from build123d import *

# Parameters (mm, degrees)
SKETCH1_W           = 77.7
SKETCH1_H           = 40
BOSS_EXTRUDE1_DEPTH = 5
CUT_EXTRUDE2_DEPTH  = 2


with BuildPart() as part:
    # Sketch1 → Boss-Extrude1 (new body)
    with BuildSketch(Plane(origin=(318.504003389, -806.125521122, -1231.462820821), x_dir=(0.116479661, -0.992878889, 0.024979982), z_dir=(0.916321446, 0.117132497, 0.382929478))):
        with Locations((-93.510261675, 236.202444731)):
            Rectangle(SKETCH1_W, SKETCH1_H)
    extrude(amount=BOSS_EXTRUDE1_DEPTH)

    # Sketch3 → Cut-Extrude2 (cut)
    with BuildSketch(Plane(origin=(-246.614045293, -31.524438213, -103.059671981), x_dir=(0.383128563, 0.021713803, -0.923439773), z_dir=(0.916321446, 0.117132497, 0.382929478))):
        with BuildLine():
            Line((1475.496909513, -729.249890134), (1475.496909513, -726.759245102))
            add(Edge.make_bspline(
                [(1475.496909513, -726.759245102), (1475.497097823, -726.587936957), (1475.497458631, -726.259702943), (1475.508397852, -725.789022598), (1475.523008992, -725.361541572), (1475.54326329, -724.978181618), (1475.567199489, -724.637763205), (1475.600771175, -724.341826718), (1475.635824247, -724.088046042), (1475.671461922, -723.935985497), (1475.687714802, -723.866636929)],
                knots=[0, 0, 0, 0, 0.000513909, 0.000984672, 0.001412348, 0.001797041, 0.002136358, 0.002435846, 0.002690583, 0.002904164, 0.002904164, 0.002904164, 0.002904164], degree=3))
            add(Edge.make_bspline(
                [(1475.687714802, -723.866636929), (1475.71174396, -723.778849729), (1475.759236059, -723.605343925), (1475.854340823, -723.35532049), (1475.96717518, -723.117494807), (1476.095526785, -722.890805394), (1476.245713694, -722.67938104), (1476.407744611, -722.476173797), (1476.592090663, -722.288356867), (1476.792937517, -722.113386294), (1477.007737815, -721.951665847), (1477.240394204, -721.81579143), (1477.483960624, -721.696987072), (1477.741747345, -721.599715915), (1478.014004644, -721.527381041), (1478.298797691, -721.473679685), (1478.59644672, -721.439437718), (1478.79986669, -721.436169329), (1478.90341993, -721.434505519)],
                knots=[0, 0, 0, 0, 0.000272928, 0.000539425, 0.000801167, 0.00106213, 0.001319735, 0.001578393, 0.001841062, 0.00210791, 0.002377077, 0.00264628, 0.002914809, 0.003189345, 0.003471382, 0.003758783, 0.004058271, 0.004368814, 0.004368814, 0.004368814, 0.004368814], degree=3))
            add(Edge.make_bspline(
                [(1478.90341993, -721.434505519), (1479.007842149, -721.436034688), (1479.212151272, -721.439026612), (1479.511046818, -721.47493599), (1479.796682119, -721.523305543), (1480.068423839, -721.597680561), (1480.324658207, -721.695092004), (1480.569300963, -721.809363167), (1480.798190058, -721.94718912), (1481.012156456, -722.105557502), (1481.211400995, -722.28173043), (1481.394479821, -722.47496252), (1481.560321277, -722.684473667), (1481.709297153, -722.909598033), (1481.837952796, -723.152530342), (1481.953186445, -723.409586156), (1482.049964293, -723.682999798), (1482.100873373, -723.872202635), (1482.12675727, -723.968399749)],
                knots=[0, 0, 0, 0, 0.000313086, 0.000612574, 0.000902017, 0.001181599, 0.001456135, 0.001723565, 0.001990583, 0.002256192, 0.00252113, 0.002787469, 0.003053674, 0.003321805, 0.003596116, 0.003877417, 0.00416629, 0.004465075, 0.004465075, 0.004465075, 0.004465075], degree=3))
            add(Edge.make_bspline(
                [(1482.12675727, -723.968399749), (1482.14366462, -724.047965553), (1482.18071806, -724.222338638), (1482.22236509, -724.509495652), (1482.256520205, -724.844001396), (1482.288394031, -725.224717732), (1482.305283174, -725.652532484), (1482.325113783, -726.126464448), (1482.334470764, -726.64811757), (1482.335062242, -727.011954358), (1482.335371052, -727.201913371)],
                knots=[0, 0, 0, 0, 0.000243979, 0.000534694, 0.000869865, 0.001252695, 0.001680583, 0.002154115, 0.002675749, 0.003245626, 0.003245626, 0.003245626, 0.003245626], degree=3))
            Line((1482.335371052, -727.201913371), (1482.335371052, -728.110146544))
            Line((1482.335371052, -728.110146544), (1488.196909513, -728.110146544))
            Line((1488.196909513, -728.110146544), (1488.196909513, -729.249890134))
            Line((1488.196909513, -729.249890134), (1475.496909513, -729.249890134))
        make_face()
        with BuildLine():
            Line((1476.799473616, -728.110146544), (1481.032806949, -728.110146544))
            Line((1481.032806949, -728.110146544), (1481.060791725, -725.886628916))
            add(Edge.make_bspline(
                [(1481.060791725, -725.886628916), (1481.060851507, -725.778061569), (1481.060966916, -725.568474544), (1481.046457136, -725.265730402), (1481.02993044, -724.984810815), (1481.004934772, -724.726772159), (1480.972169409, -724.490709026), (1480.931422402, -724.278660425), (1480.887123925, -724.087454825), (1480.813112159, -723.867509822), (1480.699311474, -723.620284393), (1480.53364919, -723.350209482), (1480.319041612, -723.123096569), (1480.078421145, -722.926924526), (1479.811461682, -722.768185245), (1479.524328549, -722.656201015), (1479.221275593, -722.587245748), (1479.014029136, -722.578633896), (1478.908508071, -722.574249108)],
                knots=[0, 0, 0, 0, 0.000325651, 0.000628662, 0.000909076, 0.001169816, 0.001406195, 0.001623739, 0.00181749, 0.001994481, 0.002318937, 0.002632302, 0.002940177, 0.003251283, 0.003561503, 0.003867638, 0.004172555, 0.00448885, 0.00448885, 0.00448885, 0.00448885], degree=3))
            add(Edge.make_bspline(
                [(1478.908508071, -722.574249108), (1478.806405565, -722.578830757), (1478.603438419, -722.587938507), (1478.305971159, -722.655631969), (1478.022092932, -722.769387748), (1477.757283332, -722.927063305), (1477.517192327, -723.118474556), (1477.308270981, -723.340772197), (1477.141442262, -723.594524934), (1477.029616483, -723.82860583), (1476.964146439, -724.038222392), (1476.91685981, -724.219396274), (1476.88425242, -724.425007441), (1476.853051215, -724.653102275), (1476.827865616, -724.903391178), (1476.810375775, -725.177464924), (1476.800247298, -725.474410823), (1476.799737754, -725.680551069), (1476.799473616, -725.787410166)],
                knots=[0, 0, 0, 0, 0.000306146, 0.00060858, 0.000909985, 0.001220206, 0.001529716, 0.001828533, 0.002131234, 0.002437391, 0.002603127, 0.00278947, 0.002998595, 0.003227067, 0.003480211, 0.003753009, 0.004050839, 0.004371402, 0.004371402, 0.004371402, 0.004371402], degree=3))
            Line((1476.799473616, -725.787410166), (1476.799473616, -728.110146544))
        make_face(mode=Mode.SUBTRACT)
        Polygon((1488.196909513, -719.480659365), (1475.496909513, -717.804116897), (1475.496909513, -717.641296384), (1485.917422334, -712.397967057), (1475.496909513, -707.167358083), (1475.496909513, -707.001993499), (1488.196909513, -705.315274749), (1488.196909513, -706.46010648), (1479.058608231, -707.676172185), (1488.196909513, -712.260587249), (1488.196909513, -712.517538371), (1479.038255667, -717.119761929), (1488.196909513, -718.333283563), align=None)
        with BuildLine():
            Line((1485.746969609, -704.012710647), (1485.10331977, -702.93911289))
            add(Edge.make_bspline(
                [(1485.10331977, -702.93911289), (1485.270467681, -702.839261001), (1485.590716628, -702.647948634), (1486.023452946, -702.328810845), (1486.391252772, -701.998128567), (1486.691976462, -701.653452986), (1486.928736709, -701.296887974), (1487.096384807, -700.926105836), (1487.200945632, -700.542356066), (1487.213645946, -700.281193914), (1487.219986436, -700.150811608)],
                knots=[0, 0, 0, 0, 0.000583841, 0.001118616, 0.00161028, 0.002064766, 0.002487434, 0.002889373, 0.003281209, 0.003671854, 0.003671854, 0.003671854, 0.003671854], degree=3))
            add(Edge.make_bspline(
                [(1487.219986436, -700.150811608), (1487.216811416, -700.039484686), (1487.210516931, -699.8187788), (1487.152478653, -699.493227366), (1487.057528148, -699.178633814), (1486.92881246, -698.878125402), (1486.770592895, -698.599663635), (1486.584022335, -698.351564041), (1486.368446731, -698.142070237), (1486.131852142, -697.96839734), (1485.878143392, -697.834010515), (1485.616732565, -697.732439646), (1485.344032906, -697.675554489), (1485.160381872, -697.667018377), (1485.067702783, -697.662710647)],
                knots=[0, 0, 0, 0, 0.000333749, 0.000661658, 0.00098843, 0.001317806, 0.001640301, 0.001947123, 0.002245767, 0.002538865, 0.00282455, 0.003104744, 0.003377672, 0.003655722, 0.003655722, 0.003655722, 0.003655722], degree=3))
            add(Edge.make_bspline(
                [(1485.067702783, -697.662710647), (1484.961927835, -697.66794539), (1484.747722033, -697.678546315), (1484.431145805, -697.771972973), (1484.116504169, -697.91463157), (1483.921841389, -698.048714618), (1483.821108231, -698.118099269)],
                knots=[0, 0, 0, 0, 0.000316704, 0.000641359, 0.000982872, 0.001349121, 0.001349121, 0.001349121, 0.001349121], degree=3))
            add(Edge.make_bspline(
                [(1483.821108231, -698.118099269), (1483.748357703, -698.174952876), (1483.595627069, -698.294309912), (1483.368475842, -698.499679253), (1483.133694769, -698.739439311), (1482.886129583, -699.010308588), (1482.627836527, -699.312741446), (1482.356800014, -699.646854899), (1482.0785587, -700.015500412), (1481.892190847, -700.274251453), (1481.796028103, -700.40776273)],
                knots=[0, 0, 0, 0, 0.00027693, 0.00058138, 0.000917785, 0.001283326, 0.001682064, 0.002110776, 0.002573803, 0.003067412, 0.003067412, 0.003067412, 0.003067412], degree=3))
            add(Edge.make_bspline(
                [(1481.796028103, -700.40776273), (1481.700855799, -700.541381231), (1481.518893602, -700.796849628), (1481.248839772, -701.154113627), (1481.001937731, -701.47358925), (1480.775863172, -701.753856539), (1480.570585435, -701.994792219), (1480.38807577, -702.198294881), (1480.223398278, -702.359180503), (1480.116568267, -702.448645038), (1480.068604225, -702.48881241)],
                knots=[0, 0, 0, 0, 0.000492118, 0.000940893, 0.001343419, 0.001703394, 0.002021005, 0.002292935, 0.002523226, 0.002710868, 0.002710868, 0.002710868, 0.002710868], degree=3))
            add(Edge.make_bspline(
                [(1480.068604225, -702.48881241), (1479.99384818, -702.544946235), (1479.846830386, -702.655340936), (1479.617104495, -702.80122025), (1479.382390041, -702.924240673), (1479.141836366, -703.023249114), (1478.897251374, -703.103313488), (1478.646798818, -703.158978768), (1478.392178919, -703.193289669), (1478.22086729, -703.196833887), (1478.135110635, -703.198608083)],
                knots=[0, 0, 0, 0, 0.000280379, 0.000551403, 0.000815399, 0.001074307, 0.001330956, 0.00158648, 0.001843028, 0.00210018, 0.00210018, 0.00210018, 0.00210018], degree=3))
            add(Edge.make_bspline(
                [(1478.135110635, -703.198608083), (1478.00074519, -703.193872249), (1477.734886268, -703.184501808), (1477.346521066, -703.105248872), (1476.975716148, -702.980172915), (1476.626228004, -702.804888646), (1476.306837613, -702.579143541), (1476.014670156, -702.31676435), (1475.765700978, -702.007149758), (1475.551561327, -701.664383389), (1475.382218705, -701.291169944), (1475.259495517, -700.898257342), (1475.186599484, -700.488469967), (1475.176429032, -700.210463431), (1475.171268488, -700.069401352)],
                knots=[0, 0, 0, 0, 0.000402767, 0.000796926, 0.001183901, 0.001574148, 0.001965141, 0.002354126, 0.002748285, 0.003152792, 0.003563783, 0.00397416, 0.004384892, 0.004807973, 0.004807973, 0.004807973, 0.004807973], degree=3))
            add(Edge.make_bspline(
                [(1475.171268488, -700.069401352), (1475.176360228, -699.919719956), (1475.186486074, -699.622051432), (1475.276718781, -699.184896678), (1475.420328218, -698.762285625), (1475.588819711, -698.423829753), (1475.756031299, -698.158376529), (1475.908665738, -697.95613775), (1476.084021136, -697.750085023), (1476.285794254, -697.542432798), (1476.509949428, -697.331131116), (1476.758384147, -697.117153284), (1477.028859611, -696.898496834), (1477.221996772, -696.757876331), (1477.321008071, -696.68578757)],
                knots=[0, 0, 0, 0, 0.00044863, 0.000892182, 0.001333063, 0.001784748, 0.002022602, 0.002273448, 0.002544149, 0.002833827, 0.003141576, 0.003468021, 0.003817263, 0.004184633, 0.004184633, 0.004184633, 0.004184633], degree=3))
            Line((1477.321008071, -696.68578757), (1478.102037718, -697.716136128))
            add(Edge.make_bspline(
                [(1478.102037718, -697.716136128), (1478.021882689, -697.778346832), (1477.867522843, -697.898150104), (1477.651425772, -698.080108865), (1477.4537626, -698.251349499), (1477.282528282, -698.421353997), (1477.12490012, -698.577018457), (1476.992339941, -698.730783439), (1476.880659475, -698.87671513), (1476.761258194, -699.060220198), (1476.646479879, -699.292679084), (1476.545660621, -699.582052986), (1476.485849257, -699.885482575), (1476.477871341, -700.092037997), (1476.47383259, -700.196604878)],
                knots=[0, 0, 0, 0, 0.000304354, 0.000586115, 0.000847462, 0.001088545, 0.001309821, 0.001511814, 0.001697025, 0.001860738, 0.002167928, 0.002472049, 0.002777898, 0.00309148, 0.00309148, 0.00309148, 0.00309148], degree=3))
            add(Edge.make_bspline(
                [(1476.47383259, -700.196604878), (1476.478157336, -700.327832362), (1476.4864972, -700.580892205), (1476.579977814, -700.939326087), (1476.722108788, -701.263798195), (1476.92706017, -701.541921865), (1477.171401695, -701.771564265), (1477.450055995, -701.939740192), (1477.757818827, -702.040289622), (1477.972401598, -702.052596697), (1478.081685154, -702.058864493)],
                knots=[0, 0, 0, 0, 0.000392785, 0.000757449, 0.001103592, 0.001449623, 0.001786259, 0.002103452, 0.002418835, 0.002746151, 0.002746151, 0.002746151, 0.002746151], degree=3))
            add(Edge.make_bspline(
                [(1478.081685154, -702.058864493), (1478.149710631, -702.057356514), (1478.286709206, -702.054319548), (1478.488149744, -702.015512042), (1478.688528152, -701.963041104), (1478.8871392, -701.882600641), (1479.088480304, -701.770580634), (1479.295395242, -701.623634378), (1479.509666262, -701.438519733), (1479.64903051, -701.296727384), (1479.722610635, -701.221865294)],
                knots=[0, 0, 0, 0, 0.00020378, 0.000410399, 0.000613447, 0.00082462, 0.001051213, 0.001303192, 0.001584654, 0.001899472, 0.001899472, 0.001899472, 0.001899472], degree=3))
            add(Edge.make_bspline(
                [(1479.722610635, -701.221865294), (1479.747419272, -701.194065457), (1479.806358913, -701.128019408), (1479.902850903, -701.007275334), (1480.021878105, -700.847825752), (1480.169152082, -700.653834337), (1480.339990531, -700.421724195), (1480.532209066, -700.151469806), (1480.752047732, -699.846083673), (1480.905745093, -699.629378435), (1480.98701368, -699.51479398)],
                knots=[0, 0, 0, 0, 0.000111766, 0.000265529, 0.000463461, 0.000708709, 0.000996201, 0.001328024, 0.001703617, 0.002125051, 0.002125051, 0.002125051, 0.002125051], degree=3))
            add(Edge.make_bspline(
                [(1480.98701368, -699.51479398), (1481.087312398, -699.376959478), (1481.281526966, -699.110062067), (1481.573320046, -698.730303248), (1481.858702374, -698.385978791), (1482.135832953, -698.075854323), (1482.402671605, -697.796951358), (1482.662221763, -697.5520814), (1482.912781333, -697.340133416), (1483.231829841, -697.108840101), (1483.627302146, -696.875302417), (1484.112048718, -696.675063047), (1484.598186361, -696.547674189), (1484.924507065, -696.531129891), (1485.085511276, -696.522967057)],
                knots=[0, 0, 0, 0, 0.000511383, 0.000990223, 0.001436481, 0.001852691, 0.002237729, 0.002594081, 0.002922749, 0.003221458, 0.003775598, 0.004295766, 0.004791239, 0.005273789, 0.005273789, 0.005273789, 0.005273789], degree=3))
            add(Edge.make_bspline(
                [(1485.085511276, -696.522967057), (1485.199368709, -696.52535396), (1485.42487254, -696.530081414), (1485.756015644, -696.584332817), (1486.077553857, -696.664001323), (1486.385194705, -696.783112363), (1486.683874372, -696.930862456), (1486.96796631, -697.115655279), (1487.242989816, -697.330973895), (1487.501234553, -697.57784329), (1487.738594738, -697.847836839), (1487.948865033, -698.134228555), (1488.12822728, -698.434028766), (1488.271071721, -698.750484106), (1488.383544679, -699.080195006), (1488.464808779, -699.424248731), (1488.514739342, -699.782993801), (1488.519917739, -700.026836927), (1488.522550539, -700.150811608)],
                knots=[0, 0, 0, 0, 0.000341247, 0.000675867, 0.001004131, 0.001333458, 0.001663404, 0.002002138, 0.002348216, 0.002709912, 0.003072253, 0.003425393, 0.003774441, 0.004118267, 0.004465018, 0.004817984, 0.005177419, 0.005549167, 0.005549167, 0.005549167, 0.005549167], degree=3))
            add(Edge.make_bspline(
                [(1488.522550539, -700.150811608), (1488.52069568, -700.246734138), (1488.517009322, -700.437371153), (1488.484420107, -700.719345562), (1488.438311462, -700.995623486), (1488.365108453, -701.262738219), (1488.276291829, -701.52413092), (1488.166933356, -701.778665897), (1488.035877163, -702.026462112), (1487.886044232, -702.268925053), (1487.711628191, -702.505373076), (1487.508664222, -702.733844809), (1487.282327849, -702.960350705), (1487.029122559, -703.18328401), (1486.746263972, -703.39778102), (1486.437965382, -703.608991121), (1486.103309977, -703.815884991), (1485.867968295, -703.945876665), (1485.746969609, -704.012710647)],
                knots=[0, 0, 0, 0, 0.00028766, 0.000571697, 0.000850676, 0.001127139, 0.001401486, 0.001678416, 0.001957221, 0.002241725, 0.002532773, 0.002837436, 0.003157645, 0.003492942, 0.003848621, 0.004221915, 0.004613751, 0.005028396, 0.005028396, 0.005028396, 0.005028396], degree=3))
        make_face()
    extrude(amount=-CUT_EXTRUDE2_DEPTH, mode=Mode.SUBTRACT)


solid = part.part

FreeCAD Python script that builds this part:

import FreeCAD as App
import Part
import Sketcher
from FreeCAD import Vector
Q = App.Units.Quantity

doc = App.newDocument("Part")
body = doc.addObject("PartDesign::Body", "Body")

# Sketch on an angled plane
sketch1 = body.newObject("Sketcher::SketchObject", "Sketch")
sketch1.Placement = App.Placement(Vector(318.504003, -806.125521, -1231.462821), App.Rotation(Vector(0.116479662, -0.992878889, 0.024979982), Vector(0.383128562, 0.021713803, -0.923439773), Vector(0.916321446, 0.117132497, 0.382929478), "ZXY"))
sketch1.addGeometry([
    Part.LineSegment(Vector(-132, 256, 0), Vector(-132, 216, 0)),
    Part.LineSegment(Vector(-132, 216, 0), Vector(-55, 216, 0)),
    Part.LineSegment(Vector(-55, 216, 0), Vector(-55, 256, 0)),
    Part.LineSegment(Vector(-55, 256, 0), Vector(-132, 256, 0)),
], False)
sketch1.addConstraint([
    Sketcher.Constraint("Coincident", 0, 2, 1, 1),
    Sketcher.Constraint("Coincident", 1, 2, 2, 1),
    Sketcher.Constraint("Coincident", 2, 2, 3, 1),
    Sketcher.Constraint("Coincident", 3, 2, 0, 1),
    Sketcher.Constraint("Vertical", 0),
    Sketcher.Constraint("Horizontal", 1),
    Sketcher.Constraint("Vertical", 2),
    Sketcher.Constraint("Horizontal", 3),
    Sketcher.Constraint("DistanceY", 0, 2, 0, 1, Q("40 mm")),
    Sketcher.Constraint("DistanceX", 1, 1, 1, 2, Q("77.7 mm")),
    Sketcher.Constraint("DistanceX", 0, 2, -1, 1, Q("132.360262 mm")),
    Sketcher.Constraint("DistanceY", -1, 1, 0, 2, Q("216.202444 mm")),
])
pad1 = body.newObject("PartDesign::Pad", "Pad")
pad1.Profile = sketch1
pad1.Length = 5

# Sketch on an angled plane
sketch2 = body.newObject("Sketcher::SketchObject", "Sketch001")
sketch2.Placement = App.Placement(Vector(-246.614045, -31.524438, -103.059672), App.Rotation(Vector(0.383128563, 0.021713803, -0.923439774), Vector(-0.116479662, 0.99287889, -0.024979982), Vector(0.916321446, 0.117132497, 0.382929478), "ZXY"))
sketch2.addGeometry([
    Part.LineSegment(Vector(1475.496911, -726.759246, 0), Vector(1475.496911, -729.249891, 0)),  # 0
    Part.LineSegment(Vector(1475.496911, -729.249891, 0), Vector(1488.196911, -729.249891, 0)),  # 1
    Part.LineSegment(Vector(1488.196911, -729.249891, 0), Vector(1488.196911, -728.110147, 0)),  # 2
    Part.LineSegment(Vector(1488.196911, -728.110147, 0), Vector(1482.335373, -728.110147, 0)),  # 3
    Part.LineSegment(Vector(1482.335373, -728.110147, 0), Vector(1482.335373, -727.201914, 0)),  # 4
    Part.BSplineCurve([Vector(1482.126759, -723.9684, 0), Vector(1482.143666, -724.047966, 0), Vector(1482.18072, -724.222339, 0), Vector(1482.222367, -724.509496, 0), Vector(1482.256522, -724.844002, 0), Vector(1482.288396, -725.224718, 0), Vector(1482.305285, -725.652533, 0), Vector(1482.325116, -726.126465, 0), Vector(1482.334473, -726.648118, 0), Vector(1482.335064, -727.011955, 0), Vector(1482.335373, -727.201914, 0)], [4, 1, 1, 1, 1, 1, 1, 1, 4], [0, 0.000243979, 0.000534694, 0.000869865, 0.001252695, 0.001680583, 0.002154115, 0.002675749, 0.003245626], False, 3, [1, 1, 1, 1, 1, 1, 1, 1, 1, 1, 1], False),  # 5
    Part.BSplineCurve([Vector(1478.903422, -721.434506, 0), Vector(1479.007844, -721.436035, 0), Vector(1479.212153, -721.439027, 0), Vector(1479.511049, -721.474936, 0), Vector(1479.796684, -721.523306, 0), Vector(1480.068426, -721.597681, 0), Vector(1480.32466, -721.695092, 0), Vector(1480.569303, -721.809364, 0), Vector(1480.798192, -721.94719, 0), Vector(1481.012158, -722.105558, 0), Vector(1481.211403, -722.281731, 0), Vector(1481.394482, -722.474963, 0), Vector(1481.560323, -722.684474, 0), Vector(1481.709299, -722.909598, 0), Vector(1481.837955, -723.152531, 0), Vector(1481.953188, -723.409587, 0), Vector(1482.049966, -723.683, 0), Vector(1482.100875, -723.872203, 0), Vector(1482.126759, -723.9684, 0)], [4, 1, 1, 1, 1, 1, 1, 1, 1, 1, 1, 1, 1, 1, 1, 1, 4], [0, 0.000313086, 0.000612574, 0.000902017, 0.001181599, 0.001456135, 0.001723565, 0.001990583, 0.002256192, 0.00252113, 0.002787469, 0.003053674, 0.003321805, 0.003596116, 0.003877417, 0.00416629, 0.004465075], False, 3, [1, 1, 1, 1, 1, 1, 1, 1, 1, 1, 1, 1, 1, 1, 1, 1, 1, 1, 1], False),  # 6
    Part.BSplineCurve([Vector(1475.687717, -723.866637, 0), Vector(1475.711746, -723.77885, 0), Vector(1475.759238, -723.605344, 0), Vector(1475.854343, -723.355321, 0), Vector(1475.967177, -723.117495, 0), Vector(1476.095529, -722.890806, 0), Vector(1476.245716, -722.679381, 0), Vector(1476.407746, -722.476174, 0), Vector(1476.592092, -722.288357, 0), Vector(1476.792939, -722.113387, 0), Vector(1477.00774, -721.951666, 0), Vector(1477.240396, -721.815792, 0), Vector(1477.483962, -721.696988, 0), Vector(1477.741749, -721.599716, 0), Vector(1478.014006, -721.527381, 0), Vector(1478.2988, -721.47368, 0), Vector(1478.596449, -721.439438, 0), Vector(1478.799869, -721.43617, 0), Vector(1478.903422, -721.434506, 0)], [4, 1, 1, 1, 1, 1, 1, 1, 1, 1, 1, 1, 1, 1, 1, 1, 4], [0, 0.000272928, 0.000539425, 0.000801167, 0.00106213, 0.001319735, 0.001578393, 0.001841062, 0.00210791, 0.002377077, 0.00264628, 0.002914809, 0.003189345, 0.003471382, 0.003758783, 0.004058271, 0.004368814], False, 3, [1, 1, 1, 1, 1, 1, 1, 1, 1, 1, 1, 1, 1, 1, 1, 1, 1, 1, 1], False),  # 7
    Part.BSplineCurve([Vector(1475.496911, -726.759246, 0), Vector(1475.4971, -726.587937, 0), Vector(1475.49746, -726.259703, 0), Vector(1475.5084, -725.789023, 0), Vector(1475.523011, -725.361542, 0), Vector(1475.543265, -724.978182, 0), Vector(1475.567201, -724.637764, 0), Vector(1475.600773, -724.341827, 0), Vector(1475.635826, -724.088046, 0), Vector(1475.671464, -723.935986, 0), Vector(1475.687717, -723.866637, 0)], [4, 1, 1, 1, 1, 1, 1, 1, 4], [0, 0.000513909, 0.000984672, 0.001412348, 0.001797041, 0.002136358, 0.002435846, 0.002690583, 0.002904164], False, 3, [1, 1, 1, 1, 1, 1, 1, 1, 1, 1, 1], False),  # 8
    Part.LineSegment(Vector(1476.799475, -728.110147, 0), Vector(1476.799475, -725.787411, 0)),  # 9
    Part.BSplineCurve([Vector(1478.90851, -722.57425, 0), Vector(1478.806407, -722.578831, 0), Vector(1478.60344, -722.587939, 0), Vector(1478.305973, -722.655632, 0), Vector(1478.022095, -722.769388, 0), Vector(1477.757285, -722.927064, 0), Vector(1477.517194, -723.118475, 0), Vector(1477.308273, -723.340773, 0), Vector(1477.141444, -723.594525, 0), Vector(1477.029618, -723.828606, 0), Vector(1476.964148, -724.038223, 0), Vector(1476.916862, -724.219397, 0), Vector(1476.884254, -724.425008, 0), Vector(1476.853053, -724.653103, 0), Vector(1476.827867, -724.903392, 0), Vector(1476.810378, -725.177465, 0), Vector(1476.800249, -725.474411, 0), Vector(1476.79974, -725.680552, 0), Vector(1476.799475, -725.787411, 0)], [4, 1, 1, 1, 1, 1, 1, 1, 1, 1, 1, 1, 1, 1, 1, 1, 4], [0, 0.000306146, 0.00060858, 0.000909985, 0.001220206, 0.001529716, 0.001828533, 0.002131234, 0.002437391, 0.002603127, 0.00278947, 0.002998595, 0.003227067, 0.003480211, 0.003753009, 0.004050839, 0.004371402], False, 3, [1, 1, 1, 1, 1, 1, 1, 1, 1, 1, 1, 1, 1, 1, 1, 1, 1, 1, 1], False),  # 10
    Part.BSplineCurve([Vector(1481.060794, -725.886629, 0), Vector(1481.060853, -725.778062, 0), Vector(1481.060969, -725.568475, 0), Vector(1481.046459, -725.265731, 0), Vector(1481.029932, -724.984811, 0), Vector(1481.004937, -724.726773, 0), Vector(1480.972171, -724.490709, 0), Vector(1480.931424, -724.278661, 0), Vector(1480.887126, -724.087455, 0), Vector(1480.813114, -723.86751, 0), Vector(1480.699313, -723.620285, 0), Vector(1480.533651, -723.35021, 0), Vector(1480.319043, -723.123097, 0), Vector(1480.078423, -722.926925, 0), Vector(1479.811464, -722.768186, 0), Vector(1479.52433, -722.656201, 0), Vector(1479.221277, -722.587246, 0), Vector(1479.014031, -722.578634, 0), Vector(1478.90851, -722.57425, 0)], [4, 1, 1, 1, 1, 1, 1, 1, 1, 1, 1, 1, 1, 1, 1, 1, 4], [0, 0.000325651, 0.000628662, 0.000909076, 0.001169816, 0.001406195, 0.001623739, 0.00181749, 0.001994481, 0.002318937, 0.002632302, 0.002940177, 0.003251283, 0.003561503, 0.003867638, 0.004172555, 0.00448885], False, 3, [1, 1, 1, 1, 1, 1, 1, 1, 1, 1, 1, 1, 1, 1, 1, 1, 1, 1, 1], False),  # 11
    Part.LineSegment(Vector(1481.060794, -725.886629, 0), Vector(1481.032809, -728.110147, 0)),  # 12
    Part.LineSegment(Vector(1481.032809, -728.110147, 0), Vector(1476.799475, -728.110147, 0)),  # 13
    Part.LineSegment(Vector(1475.496911, -717.804117, 0), Vector(1488.196911, -719.48066, 0)),  # 14
    Part.LineSegment(Vector(1488.196911, -719.48066, 0), Vector(1488.196911, -718.333284, 0)),  # 15
    Part.LineSegment(Vector(1488.196911, -718.333284, 0), Vector(1479.038257, -717.119762, 0)),  # 16
    Part.LineSegment(Vector(1479.038257, -717.119762, 0), Vector(1488.196911, -712.517539, 0)),  # 17
    Part.LineSegment(Vector(1488.196911, -712.517539, 0), Vector(1488.196911, -712.260588, 0)),  # 18
    Part.LineSegment(Vector(1488.196911, -712.260588, 0), Vector(1479.05861, -707.676173, 0)),  # 19
    Part.LineSegment(Vector(1479.05861, -707.676173, 0), Vector(1488.196911, -706.460107, 0)),  # 20
    Part.LineSegment(Vector(1488.196911, -706.460107, 0), Vector(1488.196911, -705.315275, 0)),  # 21
    Part.LineSegment(Vector(1488.196911, -705.315275, 0), Vector(1475.496911, -707.001994, 0)),  # 22
    Part.LineSegment(Vector(1475.496911, -707.001994, 0), Vector(1475.496911, -707.167359, 0)),  # 23
    Part.LineSegment(Vector(1475.496911, -707.167359, 0), Vector(1485.917424, -712.397967, 0)),  # 24
    Part.LineSegment(Vector(1485.917424, -712.397967, 0), Vector(1475.496911, -717.641297, 0)),  # 25
    Part.LineSegment(Vector(1475.496911, -717.641297, 0), Vector(1475.496911, -717.804117, 0)),  # 26
    Part.LineSegment(Vector(1485.103322, -702.939113, 0), Vector(1485.746971, -704.012711, 0)),  # 27
    Part.BSplineCurve([Vector(1488.522552, -700.150812, 0), Vector(1488.520698, -700.246735, 0), Vector(1488.517011, -700.437372, 0), Vector(1488.484422, -700.719346, 0), Vector(1488.438313, -700.995624, 0), Vector(1488.36511, -701.262739, 0), Vector(1488.276294, -701.524131, 0), Vector(1488.166935, -701.778666, 0), Vector(1488.035879, -702.026463, 0), Vector(1487.886046, -702.268925, 0), Vector(1487.71163, -702.505374, 0), Vector(1487.508666, -702.733845, 0), Vector(1487.28233, -702.960351, 0), Vector(1487.029124, -703.183284, 0), Vector(1486.746266, -703.397781, 0), Vector(1486.437967, -703.608992, 0), Vector(1486.103312, -703.815885, 0), Vector(1485.86797, -703.945877, 0), Vector(1485.746971, -704.012711, 0)], [4, 1, 1, 1, 1, 1, 1, 1, 1, 1, 1, 1, 1, 1, 1, 1, 4], [0, 0.00028766, 0.000571697, 0.000850676, 0.001127139, 0.001401486, 0.001678416, 0.001957221, 0.002241725, 0.002532773, 0.002837436, 0.003157645, 0.003492942, 0.003848621, 0.004221915, 0.004613751, 0.005028396], False, 3, [1, 1, 1, 1, 1, 1, 1, 1, 1, 1, 1, 1, 1, 1, 1, 1, 1, 1, 1], False),  # 28
    Part.BSplineCurve([Vector(1485.085513, -696.522967, 0), Vector(1485.199371, -696.525354, 0), Vector(1485.424874, -696.530082, 0), Vector(1485.756017, -696.584333, 0), Vector(1486.077556, -696.664002, 0), Vector(1486.385197, -696.783113, 0), Vector(1486.683876, -696.930863, 0), Vector(1486.967968, -697.115656, 0), Vector(1487.242992, -697.330974, 0), Vector(1487.501236, -697.577844, 0), Vector(1487.738597, -697.847837, 0), Vector(1487.948867, -698.134229, 0), Vector(1488.128229, -698.434029, 0), Vector(1488.271074, -698.750485, 0), Vector(1488.383547, -699.080195, 0), Vector(1488.464811, -699.424249, 0), Vector(1488.514741, -699.782994, 0), Vector(1488.51992, -700.026837, 0), Vector(1488.522552, -700.150812, 0)], [4, 1, 1, 1, 1, 1, 1, 1, 1, 1, 1, 1, 1, 1, 1, 1, 4], [0, 0.000341247, 0.000675867, 0.001004131, 0.001333458, 0.001663404, 0.002002138, 0.002348216, 0.002709912, 0.003072253, 0.003425393, 0.003774441, 0.004118267, 0.004465018, 0.004817984, 0.005177419, 0.005549167], False, 3, [1, 1, 1, 1, 1, 1, 1, 1, 1, 1, 1, 1, 1, 1, 1, 1, 1, 1, 1], False),  # 29
    Part.BSplineCurve([Vector(1480.987016, -699.514794, 0), Vector(1481.087314, -699.37696, 0), Vector(1481.281529, -699.110062, 0), Vector(1481.573322, -698.730304, 0), Vector(1481.858704, -698.385979, 0), Vector(1482.135835, -698.075855, 0), Vector(1482.402673, -697.796952, 0), Vector(1482.662224, -697.552082, 0), Vector(1482.912783, -697.340134, 0), Vector(1483.231832, -697.108841, 0), Vector(1483.627304, -696.875303, 0), Vector(1484.112051, -696.675063, 0), Vector(1484.598188, -696.547675, 0), Vector(1484.924509, -696.53113, 0), Vector(1485.085513, -696.522967, 0)], [4, 1, 1, 1, 1, 1, 1, 1, 1, 1, 1, 1, 4], [0, 0.000511383, 0.000990223, 0.001436481, 0.001852691, 0.002237729, 0.002594081, 0.002922749, 0.003221458, 0.003775598, 0.004295766, 0.004791239, 0.005273789], False, 3, [1, 1, 1, 1, 1, 1, 1, 1, 1, 1, 1, 1, 1, 1, 1], False),  # 30
    Part.BSplineCurve([Vector(1479.722612, -701.221866, 0), Vector(1479.747421, -701.194066, 0), Vector(1479.806361, -701.12802, 0), Vector(1479.902853, -701.007276, 0), Vector(1480.02188, -700.847826, 0), Vector(1480.169154, -700.653835, 0), Vector(1480.339992, -700.421725, 0), Vector(1480.532211, -700.15147, 0), Vector(1480.75205, -699.846084, 0), Vector(1480.905747, -699.629379, 0), Vector(1480.987016, -699.514794, 0)], [4, 1, 1, 1, 1, 1, 1, 1, 4], [0, 0.000111766, 0.000265529, 0.000463461, 0.000708709, 0.000996201, 0.001328024, 0.001703617, 0.002125051], False, 3, [1, 1, 1, 1, 1, 1, 1, 1, 1, 1, 1], False),  # 31
    Part.BSplineCurve([Vector(1478.081687, -702.058865, 0), Vector(1478.149712, -702.057357, 0), Vector(1478.286711, -702.05432, 0), Vector(1478.488152, -702.015512, 0), Vector(1478.68853, -701.963042, 0), Vector(1478.887141, -701.882601, 0), Vector(1479.088482, -701.770581, 0), Vector(1479.295397, -701.623635, 0), Vector(1479.509668, -701.43852, 0), Vector(1479.649032, -701.296728, 0), Vector(1479.722612, -701.221866, 0)], [4, 1, 1, 1, 1, 1, 1, 1, 4], [0, 0.00020378, 0.000410399, 0.000613447, 0.00082462, 0.001051213, 0.001303192, 0.001584654, 0.001899472], False, 3, [1, 1, 1, 1, 1, 1, 1, 1, 1, 1, 1], False),  # 32
    Part.BSplineCurve([Vector(1476.473834, -700.196605, 0), Vector(1476.478159, -700.327833, 0), Vector(1476.486499, -700.580893, 0), Vector(1476.57998, -700.939327, 0), Vector(1476.722111, -701.263799, 0), Vector(1476.927062, -701.541922, 0), Vector(1477.171404, -701.771565, 0), Vector(1477.450058, -701.939741, 0), Vector(1477.757821, -702.04029, 0), Vector(1477.972403, -702.052597, 0), Vector(1478.081687, -702.058865, 0)], [4, 1, 1, 1, 1, 1, 1, 1, 4], [0, 0.000392785, 0.000757449, 0.001103592, 0.001449623, 0.001786259, 0.002103452, 0.002418835, 0.002746151], False, 3, [1, 1, 1, 1, 1, 1, 1, 1, 1, 1, 1], False),  # 33
    Part.BSplineCurve([Vector(1478.10204, -697.716137, 0), Vector(1478.021885, -697.778347, 0), Vector(1477.867525, -697.898151, 0), Vector(1477.651428, -698.080109, 0), Vector(1477.453764, -698.25135, 0), Vector(1477.28253, -698.421354, 0), Vector(1477.124902, -698.577019, 0), Vector(1476.992342, -698.730784, 0), Vector(1476.880661, -698.876716, 0), Vector(1476.76126, -699.060221, 0), Vector(1476.646482, -699.29268, 0), Vector(1476.545662, -699.582053, 0), Vector(1476.485851, -699.885483, 0), Vector(1476.477873, -700.092038, 0), Vector(1476.473834, -700.196605, 0)], [4, 1, 1, 1, 1, 1, 1, 1, 1, 1, 1, 1, 4], [0, 0.000304354, 0.000586115, 0.000847462, 0.001088545, 0.001309821, 0.001511814, 0.001697025, 0.001860738, 0.002167928, 0.002472049, 0.002777898, 0.00309148], False, 3, [1, 1, 1, 1, 1, 1, 1, 1, 1, 1, 1, 1, 1, 1, 1], False),  # 34
    Part.LineSegment(Vector(1478.10204, -697.716137, 0), Vector(1477.32101, -696.685788, 0)),  # 35
    Part.BSplineCurve([Vector(1475.17127, -700.069402, 0), Vector(1475.176362, -699.91972, 0), Vector(1475.186488, -699.622052, 0), Vector(1475.276721, -699.184897, 0), Vector(1475.42033, -698.762286, 0), Vector(1475.588822, -698.42383, 0), Vector(1475.756033, -698.158377, 0), Vector(1475.908668, -697.956138, 0), Vector(1476.084023, -697.750085, 0), Vector(1476.285796, -697.542433, 0), Vector(1476.509951, -697.331132, 0), Vector(1476.758386, -697.117154, 0), Vector(1477.028861, -696.898497, 0), Vector(1477.221999, -696.757877, 0), Vector(1477.32101, -696.685788, 0)], [4, 1, 1, 1, 1, 1, 1, 1, 1, 1, 1, 1, 4], [0, 0.00044863, 0.000892182, 0.001333063, 0.001784748, 0.002022602, 0.002273448, 0.002544149, 0.002833827, 0.003141576, 0.003468021, 0.003817263, 0.004184633], False, 3, [1, 1, 1, 1, 1, 1, 1, 1, 1, 1, 1, 1, 1, 1, 1], False),  # 36
    Part.BSplineCurve([Vector(1478.135112, -703.198609, 0), Vector(1478.000747, -703.193873, 0), Vector(1477.734888, -703.184502, 0), Vector(1477.346523, -703.105249, 0), Vector(1476.975718, -702.980173, 0), Vector(1476.62623, -702.804889, 0), Vector(1476.306839, -702.579144, 0), Vector(1476.014672, -702.316765, 0), Vector(1475.765703, -702.00715, 0), Vector(1475.551563, -701.664384, 0), Vector(1475.382221, -701.29117, 0), Vector(1475.259497, -700.898258, 0), Vector(1475.186601, -700.48847, 0), Vector(1475.176431, -700.210464, 0), Vector(1475.17127, -700.069402, 0)], [4, 1, 1, 1, 1, 1, 1, 1, 1, 1, 1, 1, 4], [0, 0.000402767, 0.000796926, 0.001183901, 0.001574148, 0.001965141, 0.002354126, 0.002748285, 0.003152792, 0.003563783, 0.00397416, 0.004384892, 0.004807973], False, 3, [1, 1, 1, 1, 1, 1, 1, 1, 1, 1, 1, 1, 1, 1, 1], False),  # 37
    Part.BSplineCurve([Vector(1480.068606, -702.488813, 0), Vector(1479.99385, -702.544947, 0), Vector(1479.846832, -702.655341, 0), Vector(1479.617106, -702.801221, 0), Vector(1479.382392, -702.924241, 0), Vector(1479.141838, -703.02325, 0), Vector(1478.897253, -703.103314, 0), Vector(1478.646801, -703.158979, 0), Vector(1478.392181, -703.19329, 0), Vector(1478.220869, -703.196834, 0), Vector(1478.135112, -703.198609, 0)], [4, 1, 1, 1, 1, 1, 1, 1, 4], [0, 0.000280379, 0.000551403, 0.000815399, 0.001074307, 0.001330956, 0.00158648, 0.001843028, 0.00210018], False, 3, [1, 1, 1, 1, 1, 1, 1, 1, 1, 1, 1], False),  # 38
    Part.BSplineCurve([Vector(1481.79603, -700.407763, 0), Vector(1481.700858, -700.541382, 0), Vector(1481.518895, -700.79685, 0), Vector(1481.248842, -701.154114, 0), Vector(1481.00194, -701.47359, 0), Vector(1480.775865, -701.753857, 0), Vector(1480.570587, -701.994793, 0), Vector(1480.388078, -702.198295, 0), Vector(1480.2234, -702.359181, 0), Vector(1480.11657, -702.448645, 0), Vector(1480.068606, -702.488813, 0)], [4, 1, 1, 1, 1, 1, 1, 1, 4], [0, 0.000492118, 0.000940893, 0.001343419, 0.001703394, 0.002021005, 0.002292935, 0.002523226, 0.002710868], False, 3, [1, 1, 1, 1, 1, 1, 1, 1, 1, 1, 1], False),  # 39
    Part.BSplineCurve([Vector(1483.82111, -698.1181, 0), Vector(1483.74836, -698.174953, 0), Vector(1483.595629, -698.29431, 0), Vector(1483.368478, -698.49968, 0), Vector(1483.133697, -698.73944, 0), Vector(1482.886131, -699.010309, 0), Vector(1482.627838, -699.312742, 0), Vector(1482.356802, -699.646855, 0), Vector(1482.078561, -700.015501, 0), Vector(1481.892193, -700.274252, 0), Vector(1481.79603, -700.407763, 0)], [4, 1, 1, 1, 1, 1, 1, 1, 4], [0, 0.00027693, 0.00058138, 0.000917785, 0.001283326, 0.001682064, 0.002110776, 0.002573803, 0.003067412], False, 3, [1, 1, 1, 1, 1, 1, 1, 1, 1, 1, 1], False),  # 40
    Part.BSplineCurve([Vector(1485.067705, -697.662711, 0), Vector(1484.96193, -697.667946, 0), Vector(1484.747724, -697.678547, 0), Vector(1484.431148, -697.771973, 0), Vector(1484.116506, -697.914632, 0), Vector(1483.921843, -698.048715, 0), Vector(1483.82111, -698.1181, 0)], [4, 1, 1, 1, 4], [0, 0.000316704, 0.000641359, 0.000982872, 0.001349121], False, 3, [1, 1, 1, 1, 1, 1, 1], False),  # 41
    Part.BSplineCurve([Vector(1487.219988, -700.150812, 0), Vector(1487.216813, -700.039485, 0), Vector(1487.210519, -699.818779, 0), Vector(1487.15248, -699.493228, 0), Vector(1487.05753, -699.178634, 0), Vector(1486.928814, -698.878126, 0), Vector(1486.770595, -698.599664, 0), Vector(1486.584024, -698.351564, 0), Vector(1486.368449, -698.142071, 0), Vector(1486.131854, -697.968398, 0), Vector(1485.878145, -697.834011, 0), Vector(1485.616734, -697.73244, 0), Vector(1485.344035, -697.675555, 0), Vector(1485.160384, -697.667019, 0), Vector(1485.067705, -697.662711, 0)], [4, 1, 1, 1, 1, 1, 1, 1, 1, 1, 1, 1, 4], [0, 0.000333749, 0.000661658, 0.00098843, 0.001317806, 0.001640301, 0.001947123, 0.002245767, 0.002538865, 0.00282455, 0.003104744, 0.003377672, 0.003655722], False, 3, [1, 1, 1, 1, 1, 1, 1, 1, 1, 1, 1, 1, 1, 1, 1], False),  # 42
    Part.BSplineCurve([Vector(1485.103322, -702.939113, 0), Vector(1485.27047, -702.839261, 0), Vector(1485.590718, -702.647949, 0), Vector(1486.023455, -702.328811, 0), Vector(1486.391255, -701.998129, 0), Vector(1486.691978, -701.653453, 0), Vector(1486.928739, -701.296888, 0), Vector(1487.096387, -700.926106, 0), Vector(1487.200947, -700.542356, 0), Vector(1487.213648, -700.281194, 0), Vector(1487.219988, -700.150812, 0)], [4, 1, 1, 1, 1, 1, 1, 1, 4], [0, 0.000583841, 0.001118616, 0.00161028, 0.002064766, 0.002487434, 0.002889373, 0.003281209, 0.003671854], False, 3, [1, 1, 1, 1, 1, 1, 1, 1, 1, 1, 1], False),  # 43
], False)
sketch2.addConstraint([
    Sketcher.Constraint("Block", 5),
    Sketcher.Constraint("Block", 6),
    Sketcher.Constraint("Block", 7),
    Sketcher.Constraint("Block", 8),
    Sketcher.Constraint("Block", 10),
    Sketcher.Constraint("Block", 11),
    Sketcher.Constraint("Block", 28),
    Sketcher.Constraint("Block", 29),
    Sketcher.Constraint("Block", 30),
    Sketcher.Constraint("Block", 31),
    Sketcher.Constraint("Block", 32),
    Sketcher.Constraint("Block", 33),
    Sketcher.Constraint("Block", 34),
    Sketcher.Constraint("Block", 36),
    Sketcher.Constraint("Block", 37),
    Sketcher.Constraint("Block", 38),
    Sketcher.Constraint("Block", 39),
    Sketcher.Constraint("Block", 40),
    Sketcher.Constraint("Block", 41),
    Sketcher.Constraint("Block", 42),
    Sketcher.Constraint("Block", 43),
    Sketcher.Constraint("Coincident", 0, 2, 1, 1),
    Sketcher.Constraint("Coincident", 1, 2, 2, 1),
    Sketcher.Constraint("Coincident", 2, 2, 3, 1),
    Sketcher.Constraint("Coincident", 3, 2, 4, 1),
    Sketcher.Constraint("Coincident", 4, 2, 5, 2),
    Sketcher.Constraint("Coincident", 8, 1, 0, 1),
    Sketcher.Constraint("Coincident", 9, 2, 10, 2),
    Sketcher.Constraint("Coincident", 11, 1, 12, 1),
    Sketcher.Constraint("Coincident", 12, 2, 13, 1),
    Sketcher.Constraint("Coincident", 13, 2, 9, 1),
    Sketcher.Constraint("Coincident", 14, 2, 15, 1),
    Sketcher.Constraint("Coincident", 15, 2, 16, 1),
    Sketcher.Constraint("Coincident", 16, 2, 17, 1),
    Sketcher.Constraint("Coincident", 17, 2, 18, 1),
    Sketcher.Constraint("Coincident", 18, 2, 19, 1),
    Sketcher.Constraint("Coincident", 19, 2, 20, 1),
    Sketcher.Constraint("Coincident", 20, 2, 21, 1),
    Sketcher.Constraint("Coincident", 21, 2, 22, 1),
    Sketcher.Constraint("Coincident", 22, 2, 23, 1),
    Sketcher.Constraint("Coincident", 23, 2, 24, 1),
    Sketcher.Constraint("Coincident", 24, 2, 25, 1),
    Sketcher.Constraint("Coincident", 25, 2, 26, 1),
    Sketcher.Constraint("Coincident", 26, 2, 14, 1),
    Sketcher.Constraint("Coincident", 27, 2, 28, 2),
    Sketcher.Constraint("Coincident", 34, 1, 35, 1),
    Sketcher.Constraint("Coincident", 35, 2, 36, 2),
    Sketcher.Constraint("Coincident", 43, 1, 27, 1),
    Sketcher.Constraint("Vertical", 0),
    Sketcher.Constraint("Horizontal", 1),
    Sketcher.Constraint("Vertical", 2),
    Sketcher.Constraint("Horizontal", 3),
    Sketcher.Constraint("Vertical", 4),
    Sketcher.Constraint("Vertical", 9),
    Sketcher.Constraint("Horizontal", 13),
    Sketcher.Constraint("Vertical", 15),
    Sketcher.Constraint("Vertical", 18),
    Sketcher.Constraint("Vertical", 21),
    Sketcher.Constraint("Vertical", 23),
    Sketcher.Constraint("Vertical", 26),
    Sketcher.Constraint("Horizontal", 3, 2, 12, 2),
    Sketcher.Constraint("Vertical", 2, 2, 14, 2),
    Sketcher.Constraint("Vertical", 15, 2, 17, 2),
    Sketcher.Constraint("Vertical", 18, 2, 20, 2),
    Sketcher.Constraint("Vertical", 0, 2, 22, 2),
    Sketcher.Constraint("Vertical", 23, 2, 25, 2),
    Sketcher.Constraint("DistanceX", 1, 1, 1, 2, Q("12.7 mm")),
    Sketcher.Constraint("Angle", 20, Q("7.580015 deg")),
    Sketcher.Constraint("Distance", 16, Q("9.2387 mm")),
    Sketcher.Constraint("DistanceY", 18, 1, 18, 2, Q("0.256951 mm")),
    Sketcher.Constraint("DistanceY", 21, 1, 21, 2, Q("1.144832 mm")),
    Sketcher.Constraint("DistanceY", 26, 2, 26, 1, Q("0.162821 mm")),
    Sketcher.Constraint("DistanceX", 19, 2, 18, 2, Q("9.138301 mm")),
    Sketcher.Constraint("Distance", 22, Q("12.811519 mm")),
    Sketcher.Constraint("DistanceX", 13, 2, 13, 1, Q("4.233333 mm")),
    Sketcher.Constraint("DistanceY", 0, 2, 0, 1, Q("2.490645 mm")),
    Sketcher.Constraint("DistanceY", 2, 1, 2, 2, Q("1.139744 mm")),
    Sketcher.Constraint("DistanceY", 15, 1, 15, 2, Q("1.147376 mm")),
    Sketcher.Constraint("DistanceY", 23, 2, 23, 1, Q("0.165365 mm")),
    Sketcher.Constraint("DistanceY", 14, 2, -1, 1, Q("719.48066 mm")),
    Sketcher.Constraint("DistanceY", 17, 2, -1, 1, Q("712.517539 mm")),
    Sketcher.Constraint("DistanceY", 23, 2, -1, 1, Q("707.167359 mm")),
    Sketcher.Constraint("DistanceY", 9, 2, 16, 2, Q("8.667648 mm")),
    Sketcher.Constraint("DistanceY", 17, 2, 24, 2, Q("0.119571 mm")),
    Sketcher.Constraint("DistanceY", 25, 2, 23, 2, Q("10.473938 mm")),
    Sketcher.Constraint("Distance", 24, Q("11.659604 mm")),
])
pocket1 = body.newObject("PartDesign::Pocket", "Pocket")
pocket1.Profile = sketch2
pocket1.Length = 2

doc.recompute()
